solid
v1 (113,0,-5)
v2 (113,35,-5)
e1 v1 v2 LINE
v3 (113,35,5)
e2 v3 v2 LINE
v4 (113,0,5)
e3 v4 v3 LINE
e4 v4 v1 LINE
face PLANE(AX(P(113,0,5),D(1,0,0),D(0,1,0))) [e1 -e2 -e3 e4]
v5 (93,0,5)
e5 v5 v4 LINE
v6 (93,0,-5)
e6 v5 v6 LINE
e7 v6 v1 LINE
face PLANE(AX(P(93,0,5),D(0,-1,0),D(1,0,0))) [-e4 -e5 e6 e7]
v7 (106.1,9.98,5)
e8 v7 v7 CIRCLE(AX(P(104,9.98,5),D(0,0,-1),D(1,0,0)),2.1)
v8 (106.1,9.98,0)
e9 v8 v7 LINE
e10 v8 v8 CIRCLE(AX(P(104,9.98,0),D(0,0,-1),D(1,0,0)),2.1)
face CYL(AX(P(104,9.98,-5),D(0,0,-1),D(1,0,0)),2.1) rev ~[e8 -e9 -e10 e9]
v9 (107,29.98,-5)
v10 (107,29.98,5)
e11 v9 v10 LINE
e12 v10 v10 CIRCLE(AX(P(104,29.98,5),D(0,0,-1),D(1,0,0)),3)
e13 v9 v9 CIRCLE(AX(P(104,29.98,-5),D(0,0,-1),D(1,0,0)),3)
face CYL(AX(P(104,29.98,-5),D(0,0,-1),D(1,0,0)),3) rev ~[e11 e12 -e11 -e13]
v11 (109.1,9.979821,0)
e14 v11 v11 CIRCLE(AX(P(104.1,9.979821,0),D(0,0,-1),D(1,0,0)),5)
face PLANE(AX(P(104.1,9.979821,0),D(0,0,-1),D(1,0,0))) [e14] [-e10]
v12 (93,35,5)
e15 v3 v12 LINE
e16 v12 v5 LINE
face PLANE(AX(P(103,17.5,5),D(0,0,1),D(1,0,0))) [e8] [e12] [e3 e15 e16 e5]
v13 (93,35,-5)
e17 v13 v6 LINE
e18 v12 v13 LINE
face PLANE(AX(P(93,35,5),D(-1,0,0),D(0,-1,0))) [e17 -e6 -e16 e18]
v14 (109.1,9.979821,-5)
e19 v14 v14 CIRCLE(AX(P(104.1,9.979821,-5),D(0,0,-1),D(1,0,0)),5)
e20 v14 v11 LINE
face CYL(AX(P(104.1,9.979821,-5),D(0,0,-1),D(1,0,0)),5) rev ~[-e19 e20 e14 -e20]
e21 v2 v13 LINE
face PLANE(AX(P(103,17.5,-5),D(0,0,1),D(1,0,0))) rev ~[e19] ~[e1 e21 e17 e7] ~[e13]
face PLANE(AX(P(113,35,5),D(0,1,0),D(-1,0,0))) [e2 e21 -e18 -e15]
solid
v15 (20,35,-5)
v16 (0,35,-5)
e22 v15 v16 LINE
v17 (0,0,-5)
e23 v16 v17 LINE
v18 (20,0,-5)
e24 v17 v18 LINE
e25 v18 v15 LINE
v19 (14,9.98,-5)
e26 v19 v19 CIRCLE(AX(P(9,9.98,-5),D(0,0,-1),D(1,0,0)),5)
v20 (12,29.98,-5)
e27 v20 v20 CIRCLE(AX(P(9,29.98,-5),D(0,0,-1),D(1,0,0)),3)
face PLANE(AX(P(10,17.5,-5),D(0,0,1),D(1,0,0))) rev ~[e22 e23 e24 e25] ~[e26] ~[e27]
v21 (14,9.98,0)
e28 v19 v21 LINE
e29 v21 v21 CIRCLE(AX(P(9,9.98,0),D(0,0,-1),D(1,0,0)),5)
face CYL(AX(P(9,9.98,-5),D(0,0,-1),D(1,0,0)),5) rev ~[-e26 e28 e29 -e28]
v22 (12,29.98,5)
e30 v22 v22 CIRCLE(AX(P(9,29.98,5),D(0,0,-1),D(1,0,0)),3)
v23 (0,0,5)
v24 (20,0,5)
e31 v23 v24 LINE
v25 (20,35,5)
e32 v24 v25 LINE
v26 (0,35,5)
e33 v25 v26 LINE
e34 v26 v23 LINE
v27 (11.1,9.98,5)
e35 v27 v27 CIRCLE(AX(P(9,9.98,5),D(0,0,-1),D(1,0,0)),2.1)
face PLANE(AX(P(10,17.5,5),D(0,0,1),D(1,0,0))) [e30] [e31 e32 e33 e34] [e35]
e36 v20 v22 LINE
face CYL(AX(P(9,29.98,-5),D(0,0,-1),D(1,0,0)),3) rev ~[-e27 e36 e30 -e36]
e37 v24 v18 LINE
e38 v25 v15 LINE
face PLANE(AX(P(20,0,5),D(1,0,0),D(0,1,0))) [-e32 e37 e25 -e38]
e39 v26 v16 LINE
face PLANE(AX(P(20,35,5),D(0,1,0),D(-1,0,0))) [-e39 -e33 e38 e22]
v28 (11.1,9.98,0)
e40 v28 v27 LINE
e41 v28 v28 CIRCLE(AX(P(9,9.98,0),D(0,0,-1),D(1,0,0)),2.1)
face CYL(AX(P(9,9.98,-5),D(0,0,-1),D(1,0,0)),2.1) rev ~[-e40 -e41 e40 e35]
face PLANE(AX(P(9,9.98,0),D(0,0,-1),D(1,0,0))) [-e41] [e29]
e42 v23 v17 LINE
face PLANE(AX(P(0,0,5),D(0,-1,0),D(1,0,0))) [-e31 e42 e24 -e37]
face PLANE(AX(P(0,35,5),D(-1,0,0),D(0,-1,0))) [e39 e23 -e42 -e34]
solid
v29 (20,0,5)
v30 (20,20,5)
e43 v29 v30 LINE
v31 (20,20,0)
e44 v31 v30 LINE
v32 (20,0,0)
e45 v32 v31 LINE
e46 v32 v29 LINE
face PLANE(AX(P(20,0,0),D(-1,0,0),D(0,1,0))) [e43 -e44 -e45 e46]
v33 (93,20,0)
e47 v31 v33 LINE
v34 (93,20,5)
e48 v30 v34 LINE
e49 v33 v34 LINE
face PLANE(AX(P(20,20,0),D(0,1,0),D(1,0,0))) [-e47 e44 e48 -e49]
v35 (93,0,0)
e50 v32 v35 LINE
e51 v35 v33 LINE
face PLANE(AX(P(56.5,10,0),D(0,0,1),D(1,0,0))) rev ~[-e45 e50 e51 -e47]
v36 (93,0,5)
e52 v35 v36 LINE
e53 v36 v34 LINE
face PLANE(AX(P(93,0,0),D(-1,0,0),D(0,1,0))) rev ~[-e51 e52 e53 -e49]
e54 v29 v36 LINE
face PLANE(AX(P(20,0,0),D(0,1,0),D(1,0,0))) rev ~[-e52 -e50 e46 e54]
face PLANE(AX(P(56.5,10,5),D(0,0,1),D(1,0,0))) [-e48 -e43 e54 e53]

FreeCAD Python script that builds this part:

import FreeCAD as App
import Part
import Sketcher
from FreeCAD import Vector
Q = App.Units.Quantity

doc = App.newDocument("Part")
body = doc.addObject("PartDesign::Body", "Body")

sketch1 = doc.addObject("Sketcher::SketchObject", "Sketch")
body.addObject(sketch1)
sketch1.AttachmentSupport = (doc.XY_Plane, [""])
sketch1.MapMode = "FlatFace"
sketch1.addGeometry(Part.LineSegment(Vector(20, 20, 0), Vector(20, 0, 0)), False)
sketch1.addGeometry(Part.LineSegment(Vector(20, 0, 0), Vector(93, 0, 0)), False)
sketch1.addGeometry(Part.LineSegment(Vector(93, 0, 0), Vector(93, 20, 0)), False)
sketch1.addGeometry(Part.LineSegment(Vector(93, 20, 0), Vector(20, 20, 0)), False)
sketch1.addConstraint(Sketcher.Constraint("Coincident", 0, 2, 1, 1))
sketch1.addConstraint(Sketcher.Constraint("Coincident", 1, 2, 2, 1))
sketch1.addConstraint(Sketcher.Constraint("Coincident", 2, 2, 3, 1))
sketch1.addConstraint(Sketcher.Constraint("Coincident", 3, 2, 0, 1))
sketch1.addConstraint(Sketcher.Constraint("Vertical", 0))
sketch1.addConstraint(Sketcher.Constraint("Horizontal", 1))
sketch1.addConstraint(Sketcher.Constraint("Vertical", 2))
sketch1.addConstraint(Sketcher.Constraint("Horizontal", 3))
sketch1.addConstraint(Sketcher.Constraint("PointOnObject", 0, 2, -1))
sketch1.addConstraint(Sketcher.Constraint("DistanceX", 1, 1, 1, 2, Q("73 mm")))
sketch1.addConstraint(Sketcher.Constraint("DistanceY", 0, 2, 0, 1, Q("20 mm")))
sketch1.addConstraint(Sketcher.Constraint("DistanceX", -1, 1, 0, 2, Q("20 mm")))
pad1 = doc.addObject("PartDesign::Pad", "Pad")
body.addObject(pad1)
pad1.Profile = sketch1
pad1.Length = 5
body2 = doc.addObject("PartDesign::Body", "Body001")
body2.AllowCompound = True

sketch2 = doc.addObject("Sketcher::SketchObject", "Sketch001")
body2.addObject(sketch2)
sketch2.AttachmentSupport = (doc.getObject("XY_Plane001"), [""])
sketch2.MapMode = "FlatFace"
sketch2.AttachmentOffset = App.Placement(Vector(0, 0, 5), App.Rotation())
sketch2.addGeometry(Part.LineSegment(Vector(0, 35, 0), Vector(0, 0, 0)), False)
sketch2.addGeometry(Part.LineSegment(Vector(0, 0, 0), Vector(20, 0, 0)), False)
sketch2.addGeometry(Part.LineSegment(Vector(20, 0, 0), Vector(20, 35, 0)), False)
sketch2.addGeometry(Part.LineSegment(Vector(20, 35, 0), Vector(0, 35, 0)), False)
sketch2.addGeometry(Part.LineSegment(Vector(93, 0, 0), Vector(113, 0, 0)), False)
sketch2.addGeometry(Part.LineSegment(Vector(113, 0, 0), Vector(113, 35, 0)), False)
sketch2.addGeometry(Part.LineSegment(Vector(113, 35, 0), Vector(93, 35, 0)), False)
sketch2.addGeometry(Part.LineSegment(Vector(93, 35, 0), Vector(93, 0, 0)), False)
sketch2.addConstraint(Sketcher.Constraint("Coincident", 0, 2, 1, 1))
sketch2.addConstraint(Sketcher.Constraint("Coincident", 1, 2, 2, 1))
sketch2.addConstraint(Sketcher.Constraint("Coincident", 2, 2, 3, 1))
sketch2.addConstraint(Sketcher.Constraint("Coincident", 3, 2, 0, 1))
sketch2.addConstraint(Sketcher.Constraint("Coincident", 4, 2, 5, 1))
sketch2.addConstraint(Sketcher.Constraint("Coincident", 5, 2, 6, 1))
sketch2.addConstraint(Sketcher.Constraint("Coincident", 6, 2, 7, 1))
sketch2.addConstraint(Sketcher.Constraint("Coincident", 7, 2, 4, 1))
sketch2.addConstraint(Sketcher.Constraint("Vertical", 0))
sketch2.addConstraint(Sketcher.Constraint("Horizontal", 1))
sketch2.addConstraint(Sketcher.Constraint("Vertical", 2))
sketch2.addConstraint(Sketcher.Constraint("Horizontal", 3))
sketch2.addConstraint(Sketcher.Constraint("Horizontal", 4))
sketch2.addConstraint(Sketcher.Constraint("Vertical", 5))
sketch2.addConstraint(Sketcher.Constraint("Horizontal", 6))
sketch2.addConstraint(Sketcher.Constraint("Vertical", 7))
sketch2.addConstraint(Sketcher.Constraint("Coincident", 0, 2, -1, 1))
sketch2.addConstraint(Sketcher.Constraint("PointOnObject", 4, 2, -1))
sketch2.addConstraint(Sketcher.Constraint("Horizontal", 3, 2, 5, 2))
sketch2.addConstraint(Sketcher.Constraint("Equal", 3, 4))
sketch2.addConstraint(Sketcher.Constraint("DistanceX", 1, 1, 1, 2, Q("20 mm")))
sketch2.addConstraint(Sketcher.Constraint("DistanceY", 0, 2, 0, 1, Q("35 mm")))
sketch2.addConstraint(Sketcher.Constraint("DistanceX", -1, 1, 4, 2, Q("113 mm")))
pad2 = doc.addObject("PartDesign::Pad", "Pad001")
body2.addObject(pad2)
pad2.Profile = sketch2
pad2.Length = 10
pad2.Reversed = True

sketch3 = doc.addObject("Sketcher::SketchObject", "Sketch002")
body2.addObject(sketch3)
sketch3.AttachmentSupport = (doc.getObject("XY_Plane001"), [""])
sketch3.MapMode = "FlatFace"
sketch3.AttachmentOffset = App.Placement(Vector(0, 0, -5), App.Rotation())
sketch3.addGeometry(Part.Circle(Vector(9, 10, 0), Vector(0, 0, 1), 2.1), False)
sketch3.addGeometry(Part.Circle(Vector(9, 30, 0), Vector(0, 0, 1), 3), False)
sketch3.addGeometry(Part.Circle(Vector(104, 10, 0), Vector(0, 0, 1), 2.1), False)
sketch3.addGeometry(Part.Circle(Vector(104, 30, 0), Vector(0, 0, 1), 3), False)
sketch3.addConstraint(Sketcher.Constraint("Equal", 0, 2))
sketch3.addConstraint(Sketcher.Constraint("Equal", 1, 3))
sketch3.addConstraint(Sketcher.Constraint("Horizontal", 0, 3, 2, 3))
sketch3.addConstraint(Sketcher.Constraint("Horizontal", 1, 3, 3, 3))
sketch3.addConstraint(Sketcher.Constraint("Vertical", 0, 3, 1, 3))
sketch3.addConstraint(Sketcher.Constraint("Vertical", 2, 3, 3, 3))
sketch3.addConstraint(Sketcher.Constraint("Diameter", 1, Q("6 mm")))
sketch3.addConstraint(Sketcher.Constraint("Diameter", 0, Q("4.2 mm")))
sketch3.addConstraint(Sketcher.Constraint("DistanceX", -1, 1, 0, 3, Q("9 mm")))
sketch3.addConstraint(Sketcher.Constraint("DistanceX", -1, 1, 2, 3, Q("104 mm")))
sketch3.addConstraint(Sketcher.Constraint("DistanceY", 0, 3, 1, 3, Q("20 mm")))
sketch3.addConstraint(Sketcher.Constraint("DistanceY", -1, 1, 0, 3, Q("9.98 mm")))
pocket1 = doc.addObject("PartDesign::Pocket", "Pocket")
body2.addObject(pocket1)
pocket1.Profile = sketch3
pocket1.Length = 25
pocket1.Reversed = True

sketch4 = doc.addObject("Sketcher::SketchObject", "Sketch003")
body2.addObject(sketch4)
sketch4.AttachmentSupport = (doc.getObject("XY_Plane001"), [""])
sketch4.MapMode = "FlatFace"
sketch4.AttachmentOffset = App.Placement(Vector(0, 0, -5), App.Rotation())
sketch4.addGeometry(Part.Circle(Vector(9, 10, 0), Vector(0, 0, 1), 5), False)
sketch4.addGeometry(Part.Circle(Vector(9, 10, 0), Vector(0, 0, 1), 2.1), False)
sketch4.addGeometry(Part.Circle(Vector(104.1, 10, 0), Vector(0, 0, 1), 5), False)
sketch4.addConstraint(Sketcher.Constraint("Coincident", 1, 3, 0, 3))
sketch4.addConstraint(Sketcher.Constraint("Equal", 0, 2))
sketch4.addConstraint(Sketcher.Constraint("Diameter", 0, Q("10 mm")))
sketch4.addConstraint(Sketcher.Constraint("Diameter", 1, Q("4.2 mm")))
sketch4.addConstraint(Sketcher.Constraint("DistanceX", -1, 1, 0, 3, Q("9 mm")))
sketch4.addConstraint(Sketcher.Constraint("DistanceX", -1, 1, 2, 3, Q("104.1 mm")))
sketch4.addConstraint(Sketcher.Constraint("DistanceY", -1, 1, 0, 3, Q("9.98 mm")))
sketch4.addConstraint(Sketcher.Constraint("DistanceY", -1, 1, 2, 3, Q("9.979821 mm")))
pocket2 = doc.addObject("PartDesign::Pocket", "Pocket001")
body2.addObject(pocket2)
pocket2.Profile = sketch4
pocket2.Length = 5
pocket2.Reversed = True

doc.recompute()
